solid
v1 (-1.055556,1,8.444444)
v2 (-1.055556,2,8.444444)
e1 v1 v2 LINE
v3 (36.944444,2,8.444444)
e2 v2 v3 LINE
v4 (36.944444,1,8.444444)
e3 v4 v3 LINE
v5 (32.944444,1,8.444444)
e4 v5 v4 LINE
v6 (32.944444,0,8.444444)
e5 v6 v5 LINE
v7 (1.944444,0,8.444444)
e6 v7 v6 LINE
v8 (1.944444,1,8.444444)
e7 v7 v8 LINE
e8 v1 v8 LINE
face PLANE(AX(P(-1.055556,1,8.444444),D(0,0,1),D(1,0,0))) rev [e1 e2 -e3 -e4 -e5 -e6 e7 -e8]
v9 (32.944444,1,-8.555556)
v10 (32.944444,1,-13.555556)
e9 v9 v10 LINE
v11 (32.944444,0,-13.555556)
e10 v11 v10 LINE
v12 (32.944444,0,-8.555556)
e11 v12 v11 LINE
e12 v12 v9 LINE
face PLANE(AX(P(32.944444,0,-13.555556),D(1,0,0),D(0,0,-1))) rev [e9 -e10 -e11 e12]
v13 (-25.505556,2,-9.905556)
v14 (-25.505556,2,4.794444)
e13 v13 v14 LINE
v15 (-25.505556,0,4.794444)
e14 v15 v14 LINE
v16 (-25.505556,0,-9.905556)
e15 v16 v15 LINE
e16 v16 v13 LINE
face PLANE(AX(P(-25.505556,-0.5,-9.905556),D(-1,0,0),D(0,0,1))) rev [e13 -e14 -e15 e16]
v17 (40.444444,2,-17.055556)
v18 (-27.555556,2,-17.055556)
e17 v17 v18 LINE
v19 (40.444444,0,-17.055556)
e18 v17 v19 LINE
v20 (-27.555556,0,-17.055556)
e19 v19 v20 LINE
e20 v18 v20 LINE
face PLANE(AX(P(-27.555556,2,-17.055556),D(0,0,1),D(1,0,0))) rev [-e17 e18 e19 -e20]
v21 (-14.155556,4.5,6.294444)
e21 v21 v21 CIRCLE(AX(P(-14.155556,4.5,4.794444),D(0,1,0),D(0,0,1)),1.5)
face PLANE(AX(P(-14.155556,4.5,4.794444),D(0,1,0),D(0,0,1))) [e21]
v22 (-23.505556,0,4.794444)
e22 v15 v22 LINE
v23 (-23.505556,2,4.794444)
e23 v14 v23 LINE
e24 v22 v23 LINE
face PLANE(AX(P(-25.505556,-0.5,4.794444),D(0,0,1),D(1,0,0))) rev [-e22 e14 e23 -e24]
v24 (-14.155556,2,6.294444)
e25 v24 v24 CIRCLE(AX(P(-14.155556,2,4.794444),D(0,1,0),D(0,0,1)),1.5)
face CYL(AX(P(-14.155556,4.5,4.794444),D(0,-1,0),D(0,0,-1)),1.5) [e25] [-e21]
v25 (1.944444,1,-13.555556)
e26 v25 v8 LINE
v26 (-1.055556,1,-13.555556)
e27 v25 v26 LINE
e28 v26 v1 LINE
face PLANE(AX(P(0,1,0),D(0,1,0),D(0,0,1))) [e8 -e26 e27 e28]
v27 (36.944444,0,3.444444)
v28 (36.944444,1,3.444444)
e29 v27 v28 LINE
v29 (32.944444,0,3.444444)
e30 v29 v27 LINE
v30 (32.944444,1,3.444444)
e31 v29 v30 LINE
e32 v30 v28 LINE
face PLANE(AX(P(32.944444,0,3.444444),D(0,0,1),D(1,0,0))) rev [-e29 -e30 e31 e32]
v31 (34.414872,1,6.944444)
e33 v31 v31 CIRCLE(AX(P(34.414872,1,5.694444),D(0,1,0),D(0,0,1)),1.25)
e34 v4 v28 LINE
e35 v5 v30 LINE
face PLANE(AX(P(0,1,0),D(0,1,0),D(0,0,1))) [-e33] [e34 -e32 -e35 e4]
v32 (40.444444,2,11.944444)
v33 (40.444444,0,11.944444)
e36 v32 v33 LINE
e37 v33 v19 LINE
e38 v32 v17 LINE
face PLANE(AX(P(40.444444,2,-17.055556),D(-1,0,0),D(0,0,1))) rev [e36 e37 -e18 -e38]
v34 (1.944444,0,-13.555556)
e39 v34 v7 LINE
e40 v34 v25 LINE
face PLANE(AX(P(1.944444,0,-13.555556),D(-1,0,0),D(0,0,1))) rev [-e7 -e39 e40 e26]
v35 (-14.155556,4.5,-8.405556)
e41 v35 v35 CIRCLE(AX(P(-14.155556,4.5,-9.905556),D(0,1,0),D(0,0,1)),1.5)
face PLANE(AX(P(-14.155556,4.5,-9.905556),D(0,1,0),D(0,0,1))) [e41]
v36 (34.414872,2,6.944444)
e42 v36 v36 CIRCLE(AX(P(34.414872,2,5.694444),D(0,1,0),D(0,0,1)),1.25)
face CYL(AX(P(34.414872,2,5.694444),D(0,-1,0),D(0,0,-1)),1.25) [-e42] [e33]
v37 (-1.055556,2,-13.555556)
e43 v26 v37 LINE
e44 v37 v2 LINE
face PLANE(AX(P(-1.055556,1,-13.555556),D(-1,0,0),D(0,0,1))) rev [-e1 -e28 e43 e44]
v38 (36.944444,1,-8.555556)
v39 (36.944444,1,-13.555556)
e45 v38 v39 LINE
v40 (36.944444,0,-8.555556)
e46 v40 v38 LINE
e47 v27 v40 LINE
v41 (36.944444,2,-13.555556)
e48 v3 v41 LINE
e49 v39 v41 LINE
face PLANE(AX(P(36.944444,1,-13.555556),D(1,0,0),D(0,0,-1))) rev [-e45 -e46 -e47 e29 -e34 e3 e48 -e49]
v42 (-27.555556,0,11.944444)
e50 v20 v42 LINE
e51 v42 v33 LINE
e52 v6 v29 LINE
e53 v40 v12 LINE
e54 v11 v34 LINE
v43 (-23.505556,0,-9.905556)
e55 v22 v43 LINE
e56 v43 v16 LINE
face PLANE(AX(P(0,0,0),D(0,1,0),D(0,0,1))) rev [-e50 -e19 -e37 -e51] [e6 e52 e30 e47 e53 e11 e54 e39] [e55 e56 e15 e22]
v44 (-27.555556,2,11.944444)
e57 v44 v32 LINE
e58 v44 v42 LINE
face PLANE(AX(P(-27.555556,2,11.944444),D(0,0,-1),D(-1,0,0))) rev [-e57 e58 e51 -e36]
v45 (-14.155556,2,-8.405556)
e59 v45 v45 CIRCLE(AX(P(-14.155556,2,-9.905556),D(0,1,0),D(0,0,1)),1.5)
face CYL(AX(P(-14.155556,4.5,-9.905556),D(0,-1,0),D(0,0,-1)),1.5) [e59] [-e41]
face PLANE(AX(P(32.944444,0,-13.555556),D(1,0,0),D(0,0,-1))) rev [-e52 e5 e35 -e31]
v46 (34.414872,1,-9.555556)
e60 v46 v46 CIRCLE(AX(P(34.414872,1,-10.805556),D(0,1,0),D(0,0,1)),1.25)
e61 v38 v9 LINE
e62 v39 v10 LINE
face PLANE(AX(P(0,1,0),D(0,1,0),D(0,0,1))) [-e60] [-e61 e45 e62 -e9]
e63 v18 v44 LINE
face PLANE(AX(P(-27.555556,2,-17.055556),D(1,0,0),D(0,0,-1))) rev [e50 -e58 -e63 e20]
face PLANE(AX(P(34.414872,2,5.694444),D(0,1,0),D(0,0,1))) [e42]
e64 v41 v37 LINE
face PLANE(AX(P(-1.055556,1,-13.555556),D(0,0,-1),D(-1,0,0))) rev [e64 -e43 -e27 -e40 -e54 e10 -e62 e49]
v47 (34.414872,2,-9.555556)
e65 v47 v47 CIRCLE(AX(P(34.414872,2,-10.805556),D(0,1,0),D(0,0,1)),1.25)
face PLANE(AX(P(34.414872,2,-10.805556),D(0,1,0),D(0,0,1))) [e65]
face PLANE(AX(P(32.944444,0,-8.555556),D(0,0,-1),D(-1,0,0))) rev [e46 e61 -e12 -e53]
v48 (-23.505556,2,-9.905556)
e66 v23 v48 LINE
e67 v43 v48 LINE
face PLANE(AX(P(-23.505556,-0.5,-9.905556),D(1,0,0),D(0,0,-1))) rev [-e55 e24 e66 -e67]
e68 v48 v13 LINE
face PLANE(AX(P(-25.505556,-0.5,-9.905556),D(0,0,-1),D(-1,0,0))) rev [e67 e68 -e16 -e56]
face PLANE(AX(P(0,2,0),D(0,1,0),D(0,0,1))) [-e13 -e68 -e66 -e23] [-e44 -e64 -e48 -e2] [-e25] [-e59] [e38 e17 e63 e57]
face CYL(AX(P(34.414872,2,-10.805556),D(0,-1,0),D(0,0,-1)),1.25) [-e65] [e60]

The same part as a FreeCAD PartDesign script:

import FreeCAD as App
import Part
import Sketcher


def add_polygon(sketch, points):
    """Adds a closed chain of lines whose ends are joined by coincident constraints."""
    first, n = sketch.GeometryCount, len(points)
    for a, b in zip(points, points[1:] + points[:1]):
        sketch.addGeometry(Part.LineSegment(App.Vector(*a, 0), App.Vector(*b, 0)), False)
    for i in range(n):
        sketch.addConstraint(Sketcher.Constraint("Coincident", first + i, 2, first + (i + 1) % n, 1))

doc = App.newDocument("Part")
body = doc.addObject("PartDesign::Body", "Body")

# Sketch on XZ plane
sketch1 = body.newObject("Sketcher::SketchObject", "Sketch")
sketch1.AttachmentSupport = (doc.getObject("XZ_Plane"), [""])
sketch1.MapMode = "FlatFace"
add_polygon(sketch1, [(-28, -17), (-28, 12), (40, 12), (40, -17)])  # lines 0-3
sketch1.addConstraint(Sketcher.Constraint("Vertical", 0))
sketch1.addConstraint(Sketcher.Constraint("Horizontal", 1))
sketch1.addConstraint(Sketcher.Constraint("Vertical", 2))
sketch1.addConstraint(Sketcher.Constraint("Horizontal", 3))
sketch1.addConstraint(Sketcher.Constraint("DistanceX", 1, 1, 1, 2, 68.0))
sketch1.addConstraint(Sketcher.Constraint("DistanceY", 0, 1, 0, 2, 29.0))
sketch1.addConstraint(Sketcher.Constraint("DistanceX", 0, 2, -1, 1, 27.555556))
sketch1.addConstraint(Sketcher.Constraint("DistanceY", -1, 1, 0, 2, 11.944444))
pad1 = body.newObject("PartDesign::Pad", "Pad")
pad1.Profile = sketch1
pad1.Length = 2
pad1.Reversed = True

# Sketch on XZ plane
sketch2 = body.newObject("Sketcher::SketchObject", "Sketch001")
sketch2.AttachmentSupport = (doc.getObject("XZ_Plane"), [""])
sketch2.MapMode = "FlatFace"
sketch2.AttachmentOffset = App.Placement(App.Vector(0, 0, -2), App.Rotation())
sketch2.addGeometry(Part.Circle(App.Vector(-14.2, 4.8, 0), App.Vector(0, 0, 1), 1.5), False)
sketch2.addConstraint(Sketcher.Constraint("Diameter", 0, 3.0))
sketch2.addConstraint(Sketcher.Constraint("DistanceX", 0, 3, -1, 1, 14.155556))
sketch2.addConstraint(Sketcher.Constraint("DistanceY", -1, 1, 0, 3, 4.794444))
pad2 = body.newObject("PartDesign::Pad", "Pad001")
pad2.Profile = sketch2
pad2.Length = 2.5
pad2.Reversed = True

# Sketch on XZ plane
sketch3 = body.newObject("Sketcher::SketchObject", "Sketch002")
sketch3.AttachmentSupport = (doc.getObject("XZ_Plane"), [""])
sketch3.MapMode = "FlatFace"
sketch3.AttachmentOffset = App.Placement(App.Vector(0, 0, -2), App.Rotation())
sketch3.addGeometry(Part.Circle(App.Vector(-14.2, -9.9, 0), App.Vector(0, 0, 1), 1.5), False)
sketch3.addConstraint(Sketcher.Constraint("Diameter", 0, 3.0))
sketch3.addConstraint(Sketcher.Constraint("DistanceX", 0, 3, -1, 1, 14.155556))
sketch3.addConstraint(Sketcher.Constraint("DistanceY", 0, 3, -1, 1, 9.905556))
pad3 = body.newObject("PartDesign::Pad", "Pad002")
pad3.Profile = sketch3
pad3.Length = 2.5
pad3.Reversed = True

# Sketch on XZ plane
sketch4 = body.newObject("Sketcher::SketchObject", "Sketch003")
sketch4.AttachmentSupport = (doc.getObject("XZ_Plane"), [""])
sketch4.MapMode = "FlatFace"
sketch4.AttachmentOffset = App.Placement(App.Vector(0, 0, -2), App.Rotation())
add_polygon(sketch4, [(-25.5, -9.9), (-25.5, 4.8), (-23.5, 4.8), (-23.5, -9.9)])  # lines 0-3
sketch4.addConstraint(Sketcher.Constraint("Vertical", 0))
sketch4.addConstraint(Sketcher.Constraint("Horizontal", 1))
sketch4.addConstraint(Sketcher.Constraint("Vertical", 2))
sketch4.addConstraint(Sketcher.Constraint("Horizontal", 3))
sketch4.addConstraint(Sketcher.Constraint("DistanceX", 1, 1, 1, 2, 2.0))
sketch4.addConstraint(Sketcher.Constraint("DistanceY", 0, 1, 0, 2, 14.7))
sketch4.addConstraint(Sketcher.Constraint("DistanceX", 0, 2, -1, 1, 25.505556))
sketch4.addConstraint(Sketcher.Constraint("DistanceY", -1, 1, 0, 2, 4.794444))
pocket1 = body.newObject("PartDesign::Pocket", "Pocket")
pocket1.Profile = sketch4
pocket1.Length = 2.5
pocket1.Reversed = True

# Sketch on XZ plane
sketch5 = body.newObject("Sketcher::SketchObject", "Sketch004")
sketch5.AttachmentSupport = (doc.getObject("XZ_Plane"), [""])
sketch5.MapMode = "FlatFace"
sketch5.AttachmentOffset = App.Placement(App.Vector(0, 0, -2), App.Rotation())
add_polygon(sketch5, [(-1, -14), (-1, 8), (37, 8), (37, -14)])  # lines 0-3
sketch5.addConstraint(Sketcher.Constraint("Vertical", 0))
sketch5.addConstraint(Sketcher.Constraint("Horizontal", 1))
sketch5.addConstraint(Sketcher.Constraint("Vertical", 2))
sketch5.addConstraint(Sketcher.Constraint("Horizontal", 3))
sketch5.addConstraint(Sketcher.Constraint("DistanceX", 1, 1, 1, 2, 38.0))
sketch5.addConstraint(Sketcher.Constraint("DistanceY", 0, 1, 0, 2, 22.0))
sketch5.addConstraint(Sketcher.Constraint("DistanceX", 0, 2, -1, 1, 1.055556))
sketch5.addConstraint(Sketcher.Constraint("DistanceY", -1, 1, 0, 2, 8.444444))
pocket2 = body.newObject("PartDesign::Pocket", "Pocket001")
pocket2.Profile = sketch5
pocket2.Length = 1
pocket2.Reversed = True

# Sketch on XZ plane
sketch6 = body.newObject("Sketcher::SketchObject", "Sketch005")
sketch6.AttachmentSupport = (doc.getObject("XZ_Plane"), [""])
sketch6.MapMode = "FlatFace"
sketch6.AttachmentOffset = App.Placement(App.Vector(0, 0, -1), App.Rotation())
add_polygon(sketch6, [(2, -14), (2, 8), (33, 8), (33, -14)])  # lines 0-3
sketch6.addConstraint(Sketcher.Constraint("Vertical", 0))
sketch6.addConstraint(Sketcher.Constraint("Horizontal", 1))
sketch6.addConstraint(Sketcher.Constraint("Vertical", 2))
sketch6.addConstraint(Sketcher.Constraint("Horizontal", 3))
sketch6.addConstraint(Sketcher.Constraint("DistanceX", 1, 1, 1, 2, 31.0))
sketch6.addConstraint(Sketcher.Constraint("DistanceY", 0, 1, 0, 2, 22.0))
sketch6.addConstraint(Sketcher.Constraint("DistanceX", -1, 1, 0, 2, 1.944444))
sketch6.addConstraint(Sketcher.Constraint("DistanceY", -1, 1, 0, 2, 8.444444))
pocket3 = body.newObject("PartDesign::Pocket", "Pocket002")
pocket3.Profile = sketch6
pocket3.Length = 1
pocket3.Reversed = True

# Sketch on XZ plane
sketch7 = body.newObject("Sketcher::SketchObject", "Sketch006")
sketch7.AttachmentSupport = (doc.getObject("XZ_Plane"), [""])
sketch7.MapMode = "FlatFace"
sketch7.AttachmentOffset = App.Placement(App.Vector(0, 0, -1), App.Rotation())
add_polygon(sketch7, [(32.9, -8.6), (32.9, 3.4), (36.9, 3.4), (36.9, -8.6)])  # lines 0-3
sketch7.addConstraint(Sketcher.Constraint("Vertical", 0))
sketch7.addConstraint(Sketcher.Constraint("Horizontal", 1))
sketch7.addConstraint(Sketcher.Constraint("Vertical", 2))
sketch7.addConstraint(Sketcher.Constraint("Horizontal", 3))
sketch7.addConstraint(Sketcher.Constraint("DistanceX", 1, 1, 1, 2, 4.0))
sketch7.addConstraint(Sketcher.Constraint("DistanceY", 0, 1, 0, 2, 12.0))
sketch7.addConstraint(Sketcher.Constraint("DistanceX", -1, 1, 0, 2, 32.944444))
sketch7.addConstraint(Sketcher.Constraint("DistanceY", -1, 1, 0, 2, 3.444444))
pocket4 = body.newObject("PartDesign::Pocket", "Pocket003")
pocket4.Profile = sketch7
pocket4.Length = 1
pocket4.Reversed = True

# Sketch on XZ plane
sketch8 = body.newObject("Sketcher::SketchObject", "Sketch007")
sketch8.AttachmentSupport = (doc.getObject("XZ_Plane"), [""])
sketch8.MapMode = "FlatFace"
sketch8.AttachmentOffset = App.Placement(App.Vector(0, 0, -1), App.Rotation())
sketch8.addGeometry(Part.Circle(App.Vector(34.4, -10.8, 0), App.Vector(0, 0, 1), 1.2), False)
sketch8.addGeometry(Part.Circle(App.Vector(34.4, 5.7, 0), App.Vector(0, 0, 1), 1.2), False)
sketch8.addConstraint(Sketcher.Constraint("Equal", 0, 1))
sketch8.addConstraint(Sketcher.Constraint("Vertical", 0, 3, 1, 3))
sketch8.addConstraint(Sketcher.Constraint("Diameter", 0, 2.5))
sketch8.addConstraint(Sketcher.Constraint("DistanceY", 0, 3, 1, 3, 16.5))
sketch8.addConstraint(Sketcher.Constraint("DistanceX", -1, 1, 0, 3, 34.414872))
sketch8.addConstraint(Sketcher.Constraint("DistanceY", 0, 3, -1, 1, 10.805556))
pad4 = body.newObject("PartDesign::Pad", "Pad003")
pad4.Profile = sketch8
pad4.Length = 1
pad4.Reversed = True

doc.recompute()
